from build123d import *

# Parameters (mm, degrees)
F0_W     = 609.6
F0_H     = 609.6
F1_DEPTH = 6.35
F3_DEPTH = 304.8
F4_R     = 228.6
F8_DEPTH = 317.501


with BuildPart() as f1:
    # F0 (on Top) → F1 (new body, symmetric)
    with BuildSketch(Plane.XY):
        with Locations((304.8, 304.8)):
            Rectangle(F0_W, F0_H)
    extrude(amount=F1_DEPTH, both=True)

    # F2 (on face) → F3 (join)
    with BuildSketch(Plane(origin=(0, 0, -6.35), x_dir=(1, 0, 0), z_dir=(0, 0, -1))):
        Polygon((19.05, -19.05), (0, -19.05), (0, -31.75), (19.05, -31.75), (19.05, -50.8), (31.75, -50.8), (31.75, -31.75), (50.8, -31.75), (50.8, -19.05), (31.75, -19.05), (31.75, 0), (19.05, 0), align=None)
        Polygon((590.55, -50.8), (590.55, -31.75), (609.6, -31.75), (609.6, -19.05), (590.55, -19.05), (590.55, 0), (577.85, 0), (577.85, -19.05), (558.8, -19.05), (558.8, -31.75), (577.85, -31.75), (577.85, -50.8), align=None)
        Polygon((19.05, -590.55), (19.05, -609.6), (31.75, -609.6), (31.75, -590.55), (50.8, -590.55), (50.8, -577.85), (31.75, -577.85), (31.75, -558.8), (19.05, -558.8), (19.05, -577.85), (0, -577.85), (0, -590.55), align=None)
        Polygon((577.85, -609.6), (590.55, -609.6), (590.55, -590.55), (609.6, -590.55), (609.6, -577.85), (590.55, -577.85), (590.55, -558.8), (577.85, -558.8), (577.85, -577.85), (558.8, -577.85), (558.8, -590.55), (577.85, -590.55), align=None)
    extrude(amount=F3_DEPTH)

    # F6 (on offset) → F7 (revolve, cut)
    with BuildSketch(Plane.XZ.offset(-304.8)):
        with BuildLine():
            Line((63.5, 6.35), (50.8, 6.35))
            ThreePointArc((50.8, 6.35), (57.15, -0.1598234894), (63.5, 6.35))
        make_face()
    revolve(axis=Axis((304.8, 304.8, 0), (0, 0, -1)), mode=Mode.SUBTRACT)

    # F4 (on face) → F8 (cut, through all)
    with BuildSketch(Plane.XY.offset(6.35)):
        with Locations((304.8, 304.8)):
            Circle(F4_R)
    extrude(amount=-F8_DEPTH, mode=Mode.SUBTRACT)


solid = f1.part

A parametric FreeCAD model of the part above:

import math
import FreeCAD as App
import Part
import Sketcher

V = App.Vector
Q = App.Units.Quantity

doc = App.newDocument("Part")
body = doc.addObject("PartDesign::Body", "Body")

sketch1 = body.newObject("Sketcher::SketchObject", "Sketch")
sketch1.AttachmentSupport = (doc.getObject("XY_Plane"), [""])
sketch1.MapMode = "FlatFace"
sketch1.addGeometry(Part.LineSegment(V(0, 610, 0), V(0, 0, 0)), False)
sketch1.addGeometry(Part.LineSegment(V(0, 0, 0), V(610, 0, 0)), False)
sketch1.addGeometry(Part.LineSegment(V(610, 0, 0), V(610, 610, 0)), False)
sketch1.addGeometry(Part.LineSegment(V(610, 610, 0), V(0, 610, 0)), False)
sketch1.addConstraint(Sketcher.Constraint("Coincident", 0, 2, 1, 1))
sketch1.addConstraint(Sketcher.Constraint("Coincident", 1, 2, 2, 1))
sketch1.addConstraint(Sketcher.Constraint("Coincident", 2, 2, 3, 1))
sketch1.addConstraint(Sketcher.Constraint("Coincident", 3, 2, 0, 1))
sketch1.addConstraint(Sketcher.Constraint("Vertical", 0))
sketch1.addConstraint(Sketcher.Constraint("Horizontal", 1))
sketch1.addConstraint(Sketcher.Constraint("Vertical", 2))
sketch1.addConstraint(Sketcher.Constraint("Horizontal", 3))
sketch1.addConstraint(Sketcher.Constraint("Coincident", 0, 2, -1, 1))
sketch1.addConstraint(Sketcher.Constraint("Equal", 3, 0))
sketch1.addConstraint(Sketcher.Constraint("DistanceX", 1, 1, 1, 2, Q("24 in")))
pad1 = body.newObject("PartDesign::Pad", "Pad")
pad1.Profile = sketch1
pad1.Length = Q("0.5 in")
pad1.Midplane = True

sketch2 = body.newObject("Sketcher::SketchObject", "Sketch001")
sketch2.AttachmentSupport = (doc.getObject("XY_Plane"), [""])
sketch2.MapMode = "FlatFace"
sketch2.AttachmentOffset = App.Placement(V(0, 0, -0.25 * 25.4), App.Rotation())
sketch2.addGeometry(Part.LineSegment(V(19, 19, 0), V(0, 19, 0)), False)
sketch2.addGeometry(Part.LineSegment(V(0, 19, 0), V(0, 32, 0)), False)
sketch2.addGeometry(Part.LineSegment(V(0, 32, 0), V(19, 32, 0)), False)
sketch2.addGeometry(Part.LineSegment(V(19, 32, 0), V(19, 51, 0)), False)
sketch2.addGeometry(Part.LineSegment(V(19, 51, 0), V(32, 51, 0)), False)
sketch2.addGeometry(Part.LineSegment(V(32, 51, 0), V(32, 32, 0)), False)
sketch2.addGeometry(Part.LineSegment(V(32, 32, 0), V(51, 32, 0)), False)
sketch2.addGeometry(Part.LineSegment(V(51, 32, 0), V(51, 19, 0)), False)
sketch2.addGeometry(Part.LineSegment(V(51, 19, 0), V(32, 19, 0)), False)
sketch2.addGeometry(Part.LineSegment(V(32, 19, 0), V(32, 0, 0)), False)
sketch2.addGeometry(Part.LineSegment(V(32, 0, 0), V(19, 0, 0)), False)
sketch2.addGeometry(Part.LineSegment(V(19, 0, 0), V(19, 19, 0)), False)
sketch2.addGeometry(Part.LineSegment(V(591, 51, 0), V(591, 32, 0)), False)
sketch2.addGeometry(Part.LineSegment(V(591, 32, 0), V(610, 32, 0)), False)
sketch2.addGeometry(Part.LineSegment(V(610, 32, 0), V(610, 19, 0)), False)
sketch2.addGeometry(Part.LineSegment(V(610, 19, 0), V(591, 19, 0)), False)
sketch2.addGeometry(Part.LineSegment(V(591, 19, 0), V(591, 0, 0)), False)
sketch2.addGeometry(Part.LineSegment(V(591, 0, 0), V(578, 0, 0)), False)
sketch2.addGeometry(Part.LineSegment(V(578, 0, 0), V(578, 19, 0)), False)
sketch2.addGeometry(Part.LineSegment(V(578, 19, 0), V(559, 19, 0)), False)
sketch2.addGeometry(Part.LineSegment(V(559, 19, 0), V(559, 32, 0)), False)
sketch2.addGeometry(Part.LineSegment(V(559, 32, 0), V(578, 32, 0)), False)
sketch2.addGeometry(Part.LineSegment(V(578, 32, 0), V(578, 51, 0)), False)
sketch2.addGeometry(Part.LineSegment(V(578, 51, 0), V(591, 51, 0)), False)
sketch2.addGeometry(Part.LineSegment(V(19, 591, 0), V(19, 610, 0)), False)
sketch2.addGeometry(Part.LineSegment(V(19, 610, 0), V(32, 610, 0)), False)
sketch2.addGeometry(Part.LineSegment(V(32, 610, 0), V(32, 591, 0)), False)
sketch2.addGeometry(Part.LineSegment(V(32, 591, 0), V(51, 591, 0)), False)
sketch2.addGeometry(Part.LineSegment(V(51, 591, 0), V(51, 578, 0)), False)
sketch2.addGeometry(Part.LineSegment(V(51, 578, 0), V(32, 578, 0)), False)
sketch2.addGeometry(Part.LineSegment(V(32, 578, 0), V(32, 559, 0)), False)
sketch2.addGeometry(Part.LineSegment(V(32, 559, 0), V(19, 559, 0)), False)
sketch2.addGeometry(Part.LineSegment(V(19, 559, 0), V(19, 578, 0)), False)
sketch2.addGeometry(Part.LineSegment(V(19, 578, 0), V(0, 578, 0)), False)
sketch2.addGeometry(Part.LineSegment(V(0, 578, 0), V(0, 591, 0)), False)
sketch2.addGeometry(Part.LineSegment(V(0, 591, 0), V(19, 591, 0)), False)
sketch2.addGeometry(Part.LineSegment(V(578, 610, 0), V(591, 610, 0)), False)
sketch2.addGeometry(Part.LineSegment(V(591, 610, 0), V(591, 591, 0)), False)
sketch2.addGeometry(Part.LineSegment(V(591, 591, 0), V(610, 591, 0)), False)
sketch2.addGeometry(Part.LineSegment(V(610, 591, 0), V(610, 578, 0)), False)
sketch2.addGeometry(Part.LineSegment(V(610, 578, 0), V(591, 578, 0)), False)
sketch2.addGeometry(Part.LineSegment(V(591, 578, 0), V(591, 559, 0)), False)
sketch2.addGeometry(Part.LineSegment(V(591, 559, 0), V(578, 559, 0)), False)
sketch2.addGeometry(Part.LineSegment(V(578, 559, 0), V(578, 578, 0)), False)
sketch2.addGeometry(Part.LineSegment(V(578, 578, 0), V(559, 578, 0)), False)
sketch2.addGeometry(Part.LineSegment(V(559, 578, 0), V(559, 591, 0)), False)
sketch2.addGeometry(Part.LineSegment(V(559, 591, 0), V(578, 591, 0)), False)
sketch2.addGeometry(Part.LineSegment(V(578, 591, 0), V(578, 610, 0)), False)
sketch2.addConstraint(Sketcher.Constraint("Coincident", 0, 2, 1, 1))
sketch2.addConstraint(Sketcher.Constraint("Coincident", 1, 2, 2, 1))
sketch2.addConstraint(Sketcher.Constraint("Coincident", 2, 2, 3, 1))
sketch2.addConstraint(Sketcher.Constraint("Coincident", 3, 2, 4, 1))
sketch2.addConstraint(Sketcher.Constraint("Coincident", 4, 2, 5, 1))
sketch2.addConstraint(Sketcher.Constraint("Coincident", 5, 2, 6, 1))
sketch2.addConstraint(Sketcher.Constraint("Coincident", 6, 2, 7, 1))
sketch2.addConstraint(Sketcher.Constraint("Coincident", 7, 2, 8, 1))
sketch2.addConstraint(Sketcher.Constraint("Coincident", 8, 2, 9, 1))
sketch2.addConstraint(Sketcher.Constraint("Coincident", 9, 2, 10, 1))
sketch2.addConstraint(Sketcher.Constraint("Coincident", 10, 2, 11, 1))
sketch2.addConstraint(Sketcher.Constraint("Coincident", 11, 2, 0, 1))
sketch2.addConstraint(Sketcher.Constraint("Coincident", 12, 2, 13, 1))
sketch2.addConstraint(Sketcher.Constraint("Coincident", 13, 2, 14, 1))
sketch2.addConstraint(Sketcher.Constraint("Coincident", 14, 2, 15, 1))
sketch2.addConstraint(Sketcher.Constraint("Coincident", 15, 2, 16, 1))
sketch2.addConstraint(Sketcher.Constraint("Coincident", 16, 2, 17, 1))
sketch2.addConstraint(Sketcher.Constraint("Coincident", 17, 2, 18, 1))
sketch2.addConstraint(Sketcher.Constraint("Coincident", 18, 2, 19, 1))
sketch2.addConstraint(Sketcher.Constraint("Coincident", 19, 2, 20, 1))
sketch2.addConstraint(Sketcher.Constraint("Coincident", 20, 2, 21, 1))
sketch2.addConstraint(Sketcher.Constraint("Coincident", 21, 2, 22, 1))
sketch2.addConstraint(Sketcher.Constraint("Coincident", 22, 2, 23, 1))
sketch2.addConstraint(Sketcher.Constraint("Coincident", 23, 2, 12, 1))
sketch2.addConstraint(Sketcher.Constraint("Coincident", 24, 2, 25, 1))
sketch2.addConstraint(Sketcher.Constraint("Coincident", 25, 2, 26, 1))
sketch2.addConstraint(Sketcher.Constraint("Coincident", 26, 2, 27, 1))
sketch2.addConstraint(Sketcher.Constraint("Coincident", 27, 2, 28, 1))
sketch2.addConstraint(Sketcher.Constraint("Coincident", 28, 2, 29, 1))
sketch2.addConstraint(Sketcher.Constraint("Coincident", 29, 2, 30, 1))
sketch2.addConstraint(Sketcher.Constraint("Coincident", 30, 2, 31, 1))
sketch2.addConstraint(Sketcher.Constraint("Coincident", 31, 2, 32, 1))
sketch2.addConstraint(Sketcher.Constraint("Coincident", 32, 2, 33, 1))
sketch2.addConstraint(Sketcher.Constraint("Coincident", 33, 2, 34, 1))
sketch2.addConstraint(Sketcher.Constraint("Coincident", 34, 2, 35, 1))
sketch2.addConstraint(Sketcher.Constraint("Coincident", 35, 2, 24, 1))
sketch2.addConstraint(Sketcher.Constraint("Coincident", 36, 2, 37, 1))
sketch2.addConstraint(Sketcher.Constraint("Coincident", 37, 2, 38, 1))
sketch2.addConstraint(Sketcher.Constraint("Coincident", 38, 2, 39, 1))
sketch2.addConstraint(Sketcher.Constraint("Coincident", 39, 2, 40, 1))
sketch2.addConstraint(Sketcher.Constraint("Coincident", 40, 2, 41, 1))
sketch2.addConstraint(Sketcher.Constraint("Coincident", 41, 2, 42, 1))
sketch2.addConstraint(Sketcher.Constraint("Coincident", 42, 2, 43, 1))
sketch2.addConstraint(Sketcher.Constraint("Coincident", 43, 2, 44, 1))
sketch2.addConstraint(Sketcher.Constraint("Coincident", 44, 2, 45, 1))
sketch2.addConstraint(Sketcher.Constraint("Coincident", 45, 2, 46, 1))
sketch2.addConstraint(Sketcher.Constraint("Coincident", 46, 2, 47, 1))
sketch2.addConstraint(Sketcher.Constraint("Coincident", 47, 2, 36, 1))
sketch2.addConstraint(Sketcher.Constraint("Horizontal", 0))
sketch2.addConstraint(Sketcher.Constraint("Vertical", 1))
sketch2.addConstraint(Sketcher.Constraint("Horizontal", 2))
sketch2.addConstraint(Sketcher.Constraint("Vertical", 3))
sketch2.addConstraint(Sketcher.Constraint("Horizontal", 4))
sketch2.addConstraint(Sketcher.Constraint("Vertical", 5))
sketch2.addConstraint(Sketcher.Constraint("Horizontal", 6))
sketch2.addConstraint(Sketcher.Constraint("Vertical", 7))
sketch2.addConstraint(Sketcher.Constraint("Horizontal", 8))
sketch2.addConstraint(Sketcher.Constraint("Vertical", 9))
sketch2.addConstraint(Sketcher.Constraint("Horizontal", 10))
sketch2.addConstraint(Sketcher.Constraint("Vertical", 11))
sketch2.addConstraint(Sketcher.Constraint("Vertical", 12))
sketch2.addConstraint(Sketcher.Constraint("Horizontal", 13))
sketch2.addConstraint(Sketcher.Constraint("Vertical", 14))
sketch2.addConstraint(Sketcher.Constraint("Horizontal", 15))
sketch2.addConstraint(Sketcher.Constraint("Vertical", 16))
sketch2.addConstraint(Sketcher.Constraint("Horizontal", 17))
sketch2.addConstraint(Sketcher.Constraint("Vertical", 18))
sketch2.addConstraint(Sketcher.Constraint("Horizontal", 19))
sketch2.addConstraint(Sketcher.Constraint("Vertical", 20))
sketch2.addConstraint(Sketcher.Constraint("Horizontal", 21))
sketch2.addConstraint(Sketcher.Constraint("Vertical", 22))
sketch2.addConstraint(Sketcher.Constraint("Horizontal", 23))
sketch2.addConstraint(Sketcher.Constraint("Vertical", 24))
sketch2.addConstraint(Sketcher.Constraint("Horizontal", 25))
sketch2.addConstraint(Sketcher.Constraint("Vertical", 26))
sketch2.addConstraint(Sketcher.Constraint("Horizontal", 27))
sketch2.addConstraint(Sketcher.Constraint("Vertical", 28))
sketch2.addConstraint(Sketcher.Constraint("Horizontal", 29))
sketch2.addConstraint(Sketcher.Constraint("Vertical", 30))
sketch2.addConstraint(Sketcher.Constraint("Horizontal", 31))
sketch2.addConstraint(Sketcher.Constraint("Vertical", 32))
sketch2.addConstraint(Sketcher.Constraint("Horizontal", 33))
sketch2.addConstraint(Sketcher.Constraint("Vertical", 34))
sketch2.addConstraint(Sketcher.Constraint("Horizontal", 35))
sketch2.addConstraint(Sketcher.Constraint("Horizontal", 36))
sketch2.addConstraint(Sketcher.Constraint("Vertical", 37))
sketch2.addConstraint(Sketcher.Constraint("Horizontal", 38))
sketch2.addConstraint(Sketcher.Constraint("Vertical", 39))
sketch2.addConstraint(Sketcher.Constraint("Horizontal", 40))
sketch2.addConstraint(Sketcher.Constraint("Vertical", 41))
sketch2.addConstraint(Sketcher.Constraint("Horizontal", 42))
sketch2.addConstraint(Sketcher.Constraint("Vertical", 43))
sketch2.addConstraint(Sketcher.Constraint("Horizontal", 44))
sketch2.addConstraint(Sketcher.Constraint("Vertical", 45))
sketch2.addConstraint(Sketcher.Constraint("Horizontal", 46))
sketch2.addConstraint(Sketcher.Constraint("Vertical", 47))
sketch2.addConstraint(Sketcher.Constraint("PointOnObject", 0, 2, -2))
sketch2.addConstraint(Sketcher.Constraint("PointOnObject", 9, 2, -1))
sketch2.addConstraint(Sketcher.Constraint("PointOnObject", 16, 2, -1))
sketch2.addConstraint(Sketcher.Constraint("PointOnObject", 33, 2, -2))
sketch2.addConstraint(Sketcher.Constraint("Horizontal", 2, 2, 5, 2))
sketch2.addConstraint(Sketcher.Constraint("Horizontal", 0, 2, 7, 2))
sketch2.addConstraint(Sketcher.Constraint("Horizontal", 6, 2, 12, 2))
sketch2.addConstraint(Sketcher.Constraint("Horizontal", 11, 2, 14, 2))
sketch2.addConstraint(Sketcher.Constraint("Horizontal", 15, 2, 18, 2))
sketch2.addConstraint(Sketcher.Constraint("Horizontal", 13, 2, 20, 2))
sketch2.addConstraint(Sketcher.Constraint("Horizontal", 4, 2, 22, 2))
sketch2.addConstraint(Sketcher.Constraint("Horizontal", 29, 2, 32, 2))
sketch2.addConstraint(Sketcher.Constraint("Horizontal", 27, 2, 34, 2))
sketch2.addConstraint(Sketcher.Constraint("Horizontal", 25, 2, 36, 2))
sketch2.addConstraint(Sketcher.Constraint("Horizontal", 35, 2, 37, 2))
sketch2.addConstraint(Sketcher.Constraint("Horizontal", 33, 2, 39, 2))
sketch2.addConstraint(Sketcher.Constraint("Horizontal", 31, 2, 41, 2))
sketch2.addConstraint(Sketcher.Constraint("Horizontal", 40, 2, 43, 2))
sketch2.addConstraint(Sketcher.Constraint("Horizontal", 38, 2, 45, 2))
sketch2.addConstraint(Sketcher.Constraint("Vertical", 5, 2, 8, 2))
sketch2.addConstraint(Sketcher.Constraint("Vertical", 3, 2, 10, 2))
sketch2.addConstraint(Sketcher.Constraint("Vertical", 12, 2, 15, 2))
sketch2.addConstraint(Sketcher.Constraint("Vertical", 18, 2, 21, 2))
sketch2.addConstraint(Sketcher.Constraint("Vertical", 11, 2, 24, 2))
sketch2.addConstraint(Sketcher.Constraint("Vertical", 9, 2, 25, 2))
sketch2.addConstraint(Sketcher.Constraint("Vertical", 7, 2, 27, 2))
sketch2.addConstraint(Sketcher.Constraint("Vertical", 26, 2, 29, 2))
sketch2.addConstraint(Sketcher.Constraint("Vertical", 24, 2, 31, 2))
sketch2.addConstraint(Sketcher.Constraint("Vertical", 23, 2, 36, 2))
sketch2.addConstraint(Sketcher.Constraint("Vertical", 14, 2, 38, 2))
sketch2.addConstraint(Sketcher.Constraint("Vertical", 37, 2, 40, 2))
sketch2.addConstraint(Sketcher.Constraint("Vertical", 22, 2, 42, 2))
sketch2.addConstraint(Sketcher.Constraint("Vertical", 20, 2, 44, 2))
sketch2.addConstraint(Sketcher.Constraint("Vertical", 43, 2, 46, 2))
sketch2.addConstraint(Sketcher.Constraint("Equal", 2, 6))
sketch2.addConstraint(Sketcher.Constraint("Equal", 8, 13))
sketch2.addConstraint(Sketcher.Constraint("Equal", 10, 17))
sketch2.addConstraint(Sketcher.Constraint("Equal", 15, 19))
sketch2.addConstraint(Sketcher.Constraint("Equal", 42, 1))
sketch2.addConstraint(Sketcher.Constraint("Equal", 46, 3))
sketch2.addConstraint(Sketcher.Constraint("Equal", 5, 9))
sketch2.addConstraint(Sketcher.Constraint("Equal", 22, 24))
sketch2.addConstraint(Sketcher.Constraint("Equal", 20, 28))
sketch2.addConstraint(Sketcher.Constraint("Equal", 26, 30))
sketch2.addConstraint(Sketcher.Constraint("DistanceX", 4, 1, 4, 2, Q("0.5 in")))
sketch2.addConstraint(Sketcher.Constraint("DistanceY", -1, 1, 3, 2, Q("2 in")))
sketch2.addConstraint(Sketcher.Constraint("DistanceX", -1, 1, 13, 2, Q("24 in")))
sketch2.addConstraint(Sketcher.Constraint("DistanceY", -1, 1, 24, 2, Q("24 in")))
pad2 = body.newObject("PartDesign::Pad", "Pad001")
pad2.Profile = sketch2
pad2.Length = Q("12 in")
pad2.Reversed = True

sketch3 = body.newObject("Sketcher::SketchObject", "Sketch002")
sketch3.AttachmentSupport = (doc.getObject("XZ_Plane"), [""])
sketch3.MapMode = "FlatFace"
sketch3.AttachmentOffset = App.Placement(V(0, 0, -12 * 25.4), App.Rotation())
sketch3.addGeometry(Part.LineSegment(V(63.5, 6.35, 0), V(50.8, 6.35, 0)), False)
sketch3.addGeometry(Part.ArcOfCircle(Part.Circle(V(57.15, 6.19, 0), V(0, 0, 1), 6.35), math.radians(179), math.radians(361)), False)
sketch3.addGeometry(Part.LineSegment(V(304.8, 6.35, 0), V(304.8, 6.19, 0)), True)
sketch3.addConstraint(Sketcher.Constraint("Coincident", 0, 1, 1, 2))
sketch3.addConstraint(Sketcher.Constraint("Coincident", 1, 1, 0, 2))
sketch3.addConstraint(Sketcher.Constraint("Horizontal", 0))
sketch3.addConstraint(Sketcher.Constraint("Vertical", 2))
sketch3.addConstraint(Sketcher.Constraint("Horizontal", 1, 1, 2, 1))
sketch3.addConstraint(Sketcher.Constraint("Horizontal", 1, 3, 2, 2))
sketch3.addConstraint(Sketcher.Constraint("DistanceX", 0, 2, 0, 1, Q("0.5 in")))
sketch3.addConstraint(Sketcher.Constraint("DistanceX", -1, 1, 1, 1, Q("2 in")))
sketch3.addConstraint(Sketcher.Constraint("DistanceX", -1, 1, 2, 1, Q("12 in")))
sketch3.addConstraint(Sketcher.Constraint("DistanceY", -1, 1, 0, 1, Q("0.25 in")))
sketch3.addConstraint(Sketcher.Constraint("Radius", 1, Q("6.351962 mm")))
groove = body.newObject("PartDesign::Groove", "Groove")
groove.Profile = sketch3
groove.ReferenceAxis = (sketch3, ["Axis0"])
groove.Angle = 360

sketch4 = body.newObject("Sketcher::SketchObject", "Sketch003")
sketch4.AttachmentSupport = (doc.getObject("XY_Plane"), [""])
sketch4.MapMode = "FlatFace"
sketch4.AttachmentOffset = App.Placement(V(0, 0, 0.25 * 25.4), App.Rotation())
sketch4.addGeometry(Part.Circle(V(305, 305, 0), V(0, 0, 1), 229), False)
sketch4.addConstraint(Sketcher.Constraint("Diameter", 0, Q("18 in")))
sketch4.addConstraint(Sketcher.Constraint("DistanceX", -1, 1, 0, 3, Q("12 in")))
sketch4.addConstraint(Sketcher.Constraint("DistanceY", -1, 1, 0, 3, Q("12 in")))
pocket1 = body.newObject("PartDesign::Pocket", "Pocket")
pocket1.Profile = sketch4
pocket1.Type = "ThroughAll"

doc.recompute()
